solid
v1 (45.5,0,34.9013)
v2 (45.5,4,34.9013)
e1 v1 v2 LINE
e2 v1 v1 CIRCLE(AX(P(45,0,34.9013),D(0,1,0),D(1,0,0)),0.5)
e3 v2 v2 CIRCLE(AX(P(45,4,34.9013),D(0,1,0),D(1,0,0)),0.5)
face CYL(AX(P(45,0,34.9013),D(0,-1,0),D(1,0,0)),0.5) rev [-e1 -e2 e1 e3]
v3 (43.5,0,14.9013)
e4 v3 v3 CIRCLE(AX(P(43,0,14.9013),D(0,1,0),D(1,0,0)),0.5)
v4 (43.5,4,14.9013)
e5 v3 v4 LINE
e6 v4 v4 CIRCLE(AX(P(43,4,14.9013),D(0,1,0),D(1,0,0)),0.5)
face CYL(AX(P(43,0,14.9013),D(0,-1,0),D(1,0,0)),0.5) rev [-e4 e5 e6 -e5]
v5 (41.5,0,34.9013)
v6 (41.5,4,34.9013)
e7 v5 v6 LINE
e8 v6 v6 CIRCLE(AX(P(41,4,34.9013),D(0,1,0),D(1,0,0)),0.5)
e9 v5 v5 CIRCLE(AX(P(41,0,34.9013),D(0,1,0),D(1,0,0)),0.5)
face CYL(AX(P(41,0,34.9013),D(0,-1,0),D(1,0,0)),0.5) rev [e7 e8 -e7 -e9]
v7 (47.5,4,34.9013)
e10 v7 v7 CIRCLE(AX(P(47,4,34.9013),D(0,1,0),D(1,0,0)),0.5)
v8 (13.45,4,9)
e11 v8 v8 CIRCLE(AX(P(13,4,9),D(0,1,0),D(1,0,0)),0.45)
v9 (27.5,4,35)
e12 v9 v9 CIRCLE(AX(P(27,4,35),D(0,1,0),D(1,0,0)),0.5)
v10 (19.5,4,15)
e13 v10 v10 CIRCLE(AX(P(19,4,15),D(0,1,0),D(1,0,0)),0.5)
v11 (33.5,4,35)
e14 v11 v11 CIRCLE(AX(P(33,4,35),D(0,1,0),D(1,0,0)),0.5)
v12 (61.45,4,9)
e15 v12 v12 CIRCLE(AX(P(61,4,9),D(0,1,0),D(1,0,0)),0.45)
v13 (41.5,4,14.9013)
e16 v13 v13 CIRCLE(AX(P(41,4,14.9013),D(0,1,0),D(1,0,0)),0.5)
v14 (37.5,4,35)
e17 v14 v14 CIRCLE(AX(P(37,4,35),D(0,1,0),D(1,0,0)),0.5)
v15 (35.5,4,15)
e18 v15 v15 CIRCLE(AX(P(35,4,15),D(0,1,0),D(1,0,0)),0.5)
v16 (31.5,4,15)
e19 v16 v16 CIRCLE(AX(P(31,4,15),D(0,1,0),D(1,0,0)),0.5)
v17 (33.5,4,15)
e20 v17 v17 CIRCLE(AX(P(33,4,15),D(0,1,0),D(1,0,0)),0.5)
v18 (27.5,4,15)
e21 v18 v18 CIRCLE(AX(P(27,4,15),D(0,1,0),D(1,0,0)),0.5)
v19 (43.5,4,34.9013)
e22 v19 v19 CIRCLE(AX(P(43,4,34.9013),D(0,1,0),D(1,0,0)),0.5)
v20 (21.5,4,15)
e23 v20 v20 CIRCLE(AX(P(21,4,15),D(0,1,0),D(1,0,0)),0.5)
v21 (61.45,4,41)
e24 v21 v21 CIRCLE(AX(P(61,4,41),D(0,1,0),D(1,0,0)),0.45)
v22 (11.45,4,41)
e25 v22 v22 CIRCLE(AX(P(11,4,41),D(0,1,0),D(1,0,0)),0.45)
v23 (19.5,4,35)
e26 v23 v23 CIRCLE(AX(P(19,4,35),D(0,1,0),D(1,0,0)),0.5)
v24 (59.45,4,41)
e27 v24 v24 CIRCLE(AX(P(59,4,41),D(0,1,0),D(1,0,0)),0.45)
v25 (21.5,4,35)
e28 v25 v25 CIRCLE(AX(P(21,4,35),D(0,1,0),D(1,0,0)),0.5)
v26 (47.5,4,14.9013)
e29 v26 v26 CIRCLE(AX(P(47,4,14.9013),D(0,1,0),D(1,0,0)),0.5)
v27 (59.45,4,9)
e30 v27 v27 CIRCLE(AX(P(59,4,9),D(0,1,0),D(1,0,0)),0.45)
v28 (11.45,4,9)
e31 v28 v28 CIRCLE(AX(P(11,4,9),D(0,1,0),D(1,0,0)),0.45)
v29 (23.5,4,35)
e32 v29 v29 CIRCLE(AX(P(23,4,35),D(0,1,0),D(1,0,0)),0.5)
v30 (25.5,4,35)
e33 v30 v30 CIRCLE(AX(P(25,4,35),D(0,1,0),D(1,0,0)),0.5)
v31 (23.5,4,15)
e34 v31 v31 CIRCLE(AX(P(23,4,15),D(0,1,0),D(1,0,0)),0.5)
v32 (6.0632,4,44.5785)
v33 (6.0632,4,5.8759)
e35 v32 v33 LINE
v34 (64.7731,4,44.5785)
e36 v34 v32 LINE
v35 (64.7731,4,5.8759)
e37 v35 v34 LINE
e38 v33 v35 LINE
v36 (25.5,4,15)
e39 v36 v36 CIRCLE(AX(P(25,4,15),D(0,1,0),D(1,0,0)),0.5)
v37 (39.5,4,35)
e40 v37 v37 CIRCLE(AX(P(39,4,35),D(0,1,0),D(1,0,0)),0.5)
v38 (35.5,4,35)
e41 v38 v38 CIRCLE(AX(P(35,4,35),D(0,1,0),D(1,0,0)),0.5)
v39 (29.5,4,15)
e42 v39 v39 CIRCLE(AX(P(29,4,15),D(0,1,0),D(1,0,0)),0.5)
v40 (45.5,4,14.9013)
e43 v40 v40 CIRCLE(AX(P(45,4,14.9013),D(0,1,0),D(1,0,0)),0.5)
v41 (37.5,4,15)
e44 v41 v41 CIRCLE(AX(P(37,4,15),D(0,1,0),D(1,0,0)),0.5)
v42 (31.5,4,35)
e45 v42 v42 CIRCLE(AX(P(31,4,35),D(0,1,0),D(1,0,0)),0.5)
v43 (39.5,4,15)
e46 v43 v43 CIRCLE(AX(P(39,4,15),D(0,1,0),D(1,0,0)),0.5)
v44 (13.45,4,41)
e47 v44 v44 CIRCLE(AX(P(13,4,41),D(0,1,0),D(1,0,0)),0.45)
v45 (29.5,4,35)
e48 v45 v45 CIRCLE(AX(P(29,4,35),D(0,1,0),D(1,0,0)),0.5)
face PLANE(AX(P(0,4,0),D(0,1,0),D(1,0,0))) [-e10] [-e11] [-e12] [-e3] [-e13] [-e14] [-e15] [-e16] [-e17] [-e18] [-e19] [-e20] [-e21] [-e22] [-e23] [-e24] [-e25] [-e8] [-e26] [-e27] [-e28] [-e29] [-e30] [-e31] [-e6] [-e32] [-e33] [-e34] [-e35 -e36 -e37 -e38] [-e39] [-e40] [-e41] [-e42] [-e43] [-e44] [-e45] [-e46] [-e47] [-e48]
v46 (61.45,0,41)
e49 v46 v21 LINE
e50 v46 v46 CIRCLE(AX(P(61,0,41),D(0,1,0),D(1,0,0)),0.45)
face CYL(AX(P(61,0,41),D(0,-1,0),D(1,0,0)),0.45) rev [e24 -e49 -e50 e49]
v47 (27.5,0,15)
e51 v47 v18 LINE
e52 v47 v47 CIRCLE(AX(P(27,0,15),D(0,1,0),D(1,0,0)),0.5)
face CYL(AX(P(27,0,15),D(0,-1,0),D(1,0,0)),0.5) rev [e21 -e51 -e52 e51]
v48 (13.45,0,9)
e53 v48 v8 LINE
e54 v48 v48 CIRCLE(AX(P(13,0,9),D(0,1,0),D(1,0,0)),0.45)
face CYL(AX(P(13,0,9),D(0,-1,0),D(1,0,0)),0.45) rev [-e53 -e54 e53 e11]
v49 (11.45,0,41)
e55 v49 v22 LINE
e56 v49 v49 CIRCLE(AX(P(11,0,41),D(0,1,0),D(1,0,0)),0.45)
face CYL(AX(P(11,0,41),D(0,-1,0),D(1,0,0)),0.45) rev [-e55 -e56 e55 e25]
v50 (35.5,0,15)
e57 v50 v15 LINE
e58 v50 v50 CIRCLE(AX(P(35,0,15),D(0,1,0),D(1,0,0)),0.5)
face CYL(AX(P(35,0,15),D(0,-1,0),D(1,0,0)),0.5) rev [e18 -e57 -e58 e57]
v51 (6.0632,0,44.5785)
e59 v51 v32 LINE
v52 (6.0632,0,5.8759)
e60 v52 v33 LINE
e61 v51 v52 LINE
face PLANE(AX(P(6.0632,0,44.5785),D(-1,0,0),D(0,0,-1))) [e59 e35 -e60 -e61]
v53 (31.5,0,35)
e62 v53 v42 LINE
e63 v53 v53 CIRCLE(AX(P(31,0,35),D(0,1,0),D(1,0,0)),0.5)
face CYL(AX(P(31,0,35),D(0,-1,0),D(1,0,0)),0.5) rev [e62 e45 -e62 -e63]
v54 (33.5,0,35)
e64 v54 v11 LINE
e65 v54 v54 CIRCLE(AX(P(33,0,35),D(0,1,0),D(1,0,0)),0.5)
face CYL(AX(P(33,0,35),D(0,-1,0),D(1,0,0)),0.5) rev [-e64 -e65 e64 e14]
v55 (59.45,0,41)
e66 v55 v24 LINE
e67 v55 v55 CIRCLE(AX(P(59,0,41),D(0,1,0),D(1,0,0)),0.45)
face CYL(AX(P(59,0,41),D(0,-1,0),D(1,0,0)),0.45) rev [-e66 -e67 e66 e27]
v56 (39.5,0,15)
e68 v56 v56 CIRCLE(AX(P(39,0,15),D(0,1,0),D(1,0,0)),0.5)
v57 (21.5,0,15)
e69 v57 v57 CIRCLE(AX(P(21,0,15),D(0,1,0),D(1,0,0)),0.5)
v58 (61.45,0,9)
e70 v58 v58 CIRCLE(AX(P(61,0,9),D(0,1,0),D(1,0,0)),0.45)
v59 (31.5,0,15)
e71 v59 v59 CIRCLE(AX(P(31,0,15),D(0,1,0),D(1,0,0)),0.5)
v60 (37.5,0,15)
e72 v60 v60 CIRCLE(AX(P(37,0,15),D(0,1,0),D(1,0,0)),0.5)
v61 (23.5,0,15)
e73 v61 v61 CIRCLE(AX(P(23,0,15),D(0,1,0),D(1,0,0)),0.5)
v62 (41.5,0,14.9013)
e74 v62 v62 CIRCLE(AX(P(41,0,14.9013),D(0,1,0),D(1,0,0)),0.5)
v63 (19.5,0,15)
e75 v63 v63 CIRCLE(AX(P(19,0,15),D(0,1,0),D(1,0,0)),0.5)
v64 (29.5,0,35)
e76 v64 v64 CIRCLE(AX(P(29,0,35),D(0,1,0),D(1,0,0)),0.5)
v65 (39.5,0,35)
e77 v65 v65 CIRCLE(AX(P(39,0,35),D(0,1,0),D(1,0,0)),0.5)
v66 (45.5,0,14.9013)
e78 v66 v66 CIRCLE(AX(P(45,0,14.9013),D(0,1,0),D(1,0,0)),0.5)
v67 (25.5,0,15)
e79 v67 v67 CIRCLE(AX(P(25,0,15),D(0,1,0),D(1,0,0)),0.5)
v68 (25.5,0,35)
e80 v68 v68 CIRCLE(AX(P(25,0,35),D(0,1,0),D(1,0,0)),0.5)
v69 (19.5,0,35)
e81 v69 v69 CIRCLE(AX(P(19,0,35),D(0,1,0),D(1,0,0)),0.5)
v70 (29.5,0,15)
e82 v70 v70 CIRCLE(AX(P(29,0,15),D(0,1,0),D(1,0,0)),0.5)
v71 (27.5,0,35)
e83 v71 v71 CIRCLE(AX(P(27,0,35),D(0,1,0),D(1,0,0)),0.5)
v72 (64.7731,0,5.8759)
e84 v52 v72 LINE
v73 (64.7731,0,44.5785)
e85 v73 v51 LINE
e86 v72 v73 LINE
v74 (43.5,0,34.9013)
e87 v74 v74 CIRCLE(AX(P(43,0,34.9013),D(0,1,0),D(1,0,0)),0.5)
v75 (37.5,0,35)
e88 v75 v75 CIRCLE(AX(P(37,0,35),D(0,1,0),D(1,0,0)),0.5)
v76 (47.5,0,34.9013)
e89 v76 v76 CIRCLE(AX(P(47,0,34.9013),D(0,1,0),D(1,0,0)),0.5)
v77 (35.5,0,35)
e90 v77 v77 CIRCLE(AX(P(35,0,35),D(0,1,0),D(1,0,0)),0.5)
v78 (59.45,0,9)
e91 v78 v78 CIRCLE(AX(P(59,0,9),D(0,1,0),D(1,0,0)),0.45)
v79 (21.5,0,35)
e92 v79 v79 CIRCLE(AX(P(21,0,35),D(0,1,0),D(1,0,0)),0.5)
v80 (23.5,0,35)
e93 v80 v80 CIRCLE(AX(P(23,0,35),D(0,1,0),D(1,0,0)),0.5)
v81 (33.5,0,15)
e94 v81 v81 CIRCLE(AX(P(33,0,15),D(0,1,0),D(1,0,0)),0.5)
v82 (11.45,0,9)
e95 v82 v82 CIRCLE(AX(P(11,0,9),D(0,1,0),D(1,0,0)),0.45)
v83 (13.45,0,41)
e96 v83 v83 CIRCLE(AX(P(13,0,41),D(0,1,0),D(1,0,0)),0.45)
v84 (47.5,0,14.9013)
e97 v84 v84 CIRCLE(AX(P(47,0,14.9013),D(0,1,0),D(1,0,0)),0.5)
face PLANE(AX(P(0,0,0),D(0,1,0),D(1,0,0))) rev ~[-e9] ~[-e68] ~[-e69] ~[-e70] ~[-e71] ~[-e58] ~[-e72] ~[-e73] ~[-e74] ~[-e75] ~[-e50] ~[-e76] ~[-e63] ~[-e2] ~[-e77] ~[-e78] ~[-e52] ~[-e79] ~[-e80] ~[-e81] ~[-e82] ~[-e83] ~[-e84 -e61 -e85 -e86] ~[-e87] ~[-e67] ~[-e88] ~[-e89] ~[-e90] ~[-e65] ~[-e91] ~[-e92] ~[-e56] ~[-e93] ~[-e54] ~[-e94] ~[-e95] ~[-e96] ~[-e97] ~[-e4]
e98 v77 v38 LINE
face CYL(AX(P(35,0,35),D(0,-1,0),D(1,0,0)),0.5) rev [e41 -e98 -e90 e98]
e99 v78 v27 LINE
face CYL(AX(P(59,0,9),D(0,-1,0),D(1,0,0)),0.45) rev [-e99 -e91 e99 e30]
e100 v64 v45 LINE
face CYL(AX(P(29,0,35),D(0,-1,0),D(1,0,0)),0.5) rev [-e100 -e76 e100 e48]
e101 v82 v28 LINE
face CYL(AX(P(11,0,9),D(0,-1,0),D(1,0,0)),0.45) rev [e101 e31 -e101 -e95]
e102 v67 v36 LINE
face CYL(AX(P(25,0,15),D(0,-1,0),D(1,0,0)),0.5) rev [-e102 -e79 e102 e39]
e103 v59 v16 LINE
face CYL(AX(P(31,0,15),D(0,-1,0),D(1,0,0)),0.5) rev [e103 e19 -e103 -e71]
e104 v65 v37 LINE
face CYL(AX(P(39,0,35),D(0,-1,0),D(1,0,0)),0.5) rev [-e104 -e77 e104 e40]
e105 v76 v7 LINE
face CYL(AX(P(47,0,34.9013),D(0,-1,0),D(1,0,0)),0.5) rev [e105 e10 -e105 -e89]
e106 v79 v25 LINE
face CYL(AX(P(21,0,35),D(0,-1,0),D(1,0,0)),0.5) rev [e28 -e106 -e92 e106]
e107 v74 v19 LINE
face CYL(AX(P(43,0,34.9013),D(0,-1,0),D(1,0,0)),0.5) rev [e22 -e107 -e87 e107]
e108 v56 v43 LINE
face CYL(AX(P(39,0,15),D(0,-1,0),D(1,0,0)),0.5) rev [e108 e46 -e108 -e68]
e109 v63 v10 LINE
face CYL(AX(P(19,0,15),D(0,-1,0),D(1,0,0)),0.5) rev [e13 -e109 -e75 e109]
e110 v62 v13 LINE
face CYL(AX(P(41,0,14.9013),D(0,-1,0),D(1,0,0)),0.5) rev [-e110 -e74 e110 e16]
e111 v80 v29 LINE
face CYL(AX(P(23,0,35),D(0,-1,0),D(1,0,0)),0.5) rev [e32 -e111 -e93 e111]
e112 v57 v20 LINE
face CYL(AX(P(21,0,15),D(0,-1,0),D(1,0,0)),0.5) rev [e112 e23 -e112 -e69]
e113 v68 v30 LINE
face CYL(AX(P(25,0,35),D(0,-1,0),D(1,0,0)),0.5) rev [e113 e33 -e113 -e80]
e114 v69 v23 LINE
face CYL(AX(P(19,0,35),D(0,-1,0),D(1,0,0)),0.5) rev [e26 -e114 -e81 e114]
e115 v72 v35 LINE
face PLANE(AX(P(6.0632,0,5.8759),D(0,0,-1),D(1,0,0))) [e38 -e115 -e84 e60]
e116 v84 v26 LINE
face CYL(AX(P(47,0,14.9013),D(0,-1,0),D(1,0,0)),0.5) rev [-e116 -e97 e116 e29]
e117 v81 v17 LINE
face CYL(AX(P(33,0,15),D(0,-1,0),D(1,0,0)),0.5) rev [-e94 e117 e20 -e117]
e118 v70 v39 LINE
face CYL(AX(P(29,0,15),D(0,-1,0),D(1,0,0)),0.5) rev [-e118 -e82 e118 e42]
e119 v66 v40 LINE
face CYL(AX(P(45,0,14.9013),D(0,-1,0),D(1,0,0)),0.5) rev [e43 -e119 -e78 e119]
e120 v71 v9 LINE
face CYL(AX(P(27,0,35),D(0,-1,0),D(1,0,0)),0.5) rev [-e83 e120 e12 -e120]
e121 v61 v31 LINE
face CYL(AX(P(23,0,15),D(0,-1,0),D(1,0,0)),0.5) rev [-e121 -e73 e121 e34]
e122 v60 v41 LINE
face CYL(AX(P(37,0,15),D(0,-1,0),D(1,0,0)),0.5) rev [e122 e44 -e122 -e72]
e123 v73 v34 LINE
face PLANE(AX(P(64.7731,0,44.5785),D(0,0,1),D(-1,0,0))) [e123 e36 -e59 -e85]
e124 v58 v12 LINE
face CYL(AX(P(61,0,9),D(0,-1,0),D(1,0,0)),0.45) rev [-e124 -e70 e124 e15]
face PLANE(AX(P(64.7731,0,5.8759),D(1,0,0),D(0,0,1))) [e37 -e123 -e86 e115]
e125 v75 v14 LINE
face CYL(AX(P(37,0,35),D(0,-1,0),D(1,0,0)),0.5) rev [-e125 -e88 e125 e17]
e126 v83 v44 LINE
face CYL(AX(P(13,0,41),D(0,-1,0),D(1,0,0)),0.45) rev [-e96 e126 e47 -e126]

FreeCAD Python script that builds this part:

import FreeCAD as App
import Part
import Sketcher
Q = App.Units.Quantity


def add_polygon(sketch, points):
    """Adds a closed chain of lines whose ends are joined by coincident constraints."""
    first, n = sketch.GeometryCount, len(points)
    for a, b in zip(points, points[1:] + points[:1]):
        sketch.addGeometry(Part.LineSegment(App.Vector(*a, 0), App.Vector(*b, 0)), False)
    for i in range(n):
        sketch.addConstraint(Sketcher.Constraint("Coincident", first + i, 2, first + (i + 1) % n, 1))

doc = App.newDocument("Part")
params = doc.addObject("Spreadsheet::Sheet", "Params")
for row, (alias, value) in enumerate([
    ("sketch1_diameter", "1 mm"),
    ("sketch1_diameter2", "0.9 mm"),
    ("sketch1_width", "58.71 mm"),
    ("pad1_length", "4 mm"),
], start=1):
    params.set(f"A{row}", alias)
    params.set(f"B{row}", "=" + value)
    params.setAlias(f"B{row}", alias)

body = doc.addObject("PartDesign::Body", "Body")

sketch1 = body.newObject("Sketcher::SketchObject", "Sketch")
sketch1.AttachmentSupport = (doc.getObject("XZ_Plane"), [""])
sketch1.MapMode = "FlatFace"
add_polygon(sketch1, [(64.77, 5.88), (6.06, 5.88), (6.06, 44.58), (64.77, 44.58)])
sketch1.addGeometry(Part.Circle(App.Vector(11, 41, 0), App.Vector(0, 0, 1), 0.45), False)
sketch1.addGeometry(Part.Circle(App.Vector(13, 41, 0), App.Vector(0, 0, 1), 0.45), False)
sketch1.addGeometry(Part.Circle(App.Vector(19, 35, 0), App.Vector(0, 0, 1), 0.5), False)
sketch1.addGeometry(Part.Circle(App.Vector(21, 35, 0), App.Vector(0, 0, 1), 0.5), False)
sketch1.addGeometry(Part.Circle(App.Vector(23, 35, 0), App.Vector(0, 0, 1), 0.5), False)
sketch1.addGeometry(Part.Circle(App.Vector(25, 35, 0), App.Vector(0, 0, 1), 0.5), False)
sketch1.addGeometry(Part.Circle(App.Vector(27, 35, 0), App.Vector(0, 0, 1), 0.5), False)
sketch1.addGeometry(Part.Circle(App.Vector(29, 35, 0), App.Vector(0, 0, 1), 0.5), False)
sketch1.addGeometry(Part.Circle(App.Vector(31, 35, 0), App.Vector(0, 0, 1), 0.5), False)
sketch1.addGeometry(Part.Circle(App.Vector(33, 35, 0), App.Vector(0, 0, 1), 0.5), False)
sketch1.addGeometry(Part.Circle(App.Vector(35, 35, 0), App.Vector(0, 0, 1), 0.5), False)
sketch1.addGeometry(Part.Circle(App.Vector(37, 35, 0), App.Vector(0, 0, 1), 0.5), False)
sketch1.addGeometry(Part.Circle(App.Vector(39, 35, 0), App.Vector(0, 0, 1), 0.5), False)
sketch1.addGeometry(Part.Circle(App.Vector(59, 41, 0), App.Vector(0, 0, 1), 0.45), False)
sketch1.addGeometry(Part.Circle(App.Vector(61, 41, 0), App.Vector(0, 0, 1), 0.45), False)
sketch1.addGeometry(Part.Circle(App.Vector(41, 34.9, 0), App.Vector(0, 0, 1), 0.5), False)
sketch1.addGeometry(Part.Circle(App.Vector(43, 34.9, 0), App.Vector(0, 0, 1), 0.5), False)
sketch1.addGeometry(Part.Circle(App.Vector(45, 34.9, 0), App.Vector(0, 0, 1), 0.5), False)
sketch1.addGeometry(Part.Circle(App.Vector(47, 34.9, 0), App.Vector(0, 0, 1), 0.5), False)
sketch1.addGeometry(Part.Circle(App.Vector(19, 15, 0), App.Vector(0, 0, 1), 0.5), False)
sketch1.addGeometry(Part.Circle(App.Vector(11, 9, 0), App.Vector(0, 0, 1), 0.45), False)
sketch1.addGeometry(Part.Circle(App.Vector(13, 9, 0), App.Vector(0, 0, 1), 0.45), False)
sketch1.addGeometry(Part.Circle(App.Vector(21, 15, 0), App.Vector(0, 0, 1), 0.5), False)
sketch1.addGeometry(Part.Circle(App.Vector(23, 15, 0), App.Vector(0, 0, 1), 0.5), False)
sketch1.addGeometry(Part.Circle(App.Vector(25, 15, 0), App.Vector(0, 0, 1), 0.5), False)
sketch1.addGeometry(Part.Circle(App.Vector(27, 15, 0), App.Vector(0, 0, 1), 0.5), False)
sketch1.addGeometry(Part.Circle(App.Vector(29, 15, 0), App.Vector(0, 0, 1), 0.5), False)
sketch1.addGeometry(Part.Circle(App.Vector(31, 15, 0), App.Vector(0, 0, 1), 0.5), False)
sketch1.addGeometry(Part.Circle(App.Vector(33, 15, 0), App.Vector(0, 0, 1), 0.5), False)
sketch1.addGeometry(Part.Circle(App.Vector(35, 15, 0), App.Vector(0, 0, 1), 0.5), False)
sketch1.addGeometry(Part.Circle(App.Vector(37, 15, 0), App.Vector(0, 0, 1), 0.5), False)
sketch1.addGeometry(Part.Circle(App.Vector(39, 15, 0), App.Vector(0, 0, 1), 0.5), False)
sketch1.addGeometry(Part.Circle(App.Vector(41, 14.9, 0), App.Vector(0, 0, 1), 0.5), False)
sketch1.addGeometry(Part.Circle(App.Vector(43, 14.9, 0), App.Vector(0, 0, 1), 0.5), False)
sketch1.addGeometry(Part.Circle(App.Vector(45, 14.9, 0), App.Vector(0, 0, 1), 0.5), False)
sketch1.addGeometry(Part.Circle(App.Vector(47, 14.9, 0), App.Vector(0, 0, 1), 0.5), False)
sketch1.addGeometry(Part.Circle(App.Vector(59, 9, 0), App.Vector(0, 0, 1), 0.45), False)
sketch1.addGeometry(Part.Circle(App.Vector(61, 9, 0), App.Vector(0, 0, 1), 0.45), False)
sketch1.addConstraint([
    Sketcher.Constraint("Horizontal", 0),
    Sketcher.Constraint("Vertical", 1),
    Sketcher.Constraint("Horizontal", 2),
    Sketcher.Constraint("Vertical", 3),
    Sketcher.Constraint("Equal", 4, 5),
    Sketcher.Constraint("Equal", 6, 7),
    Sketcher.Constraint("Equal", 7, 8),
    Sketcher.Constraint("Equal", 8, 9),
    Sketcher.Constraint("Equal", 9, 10),
    Sketcher.Constraint("Equal", 10, 11),
    Sketcher.Constraint("Equal", 11, 12),
    Sketcher.Constraint("Equal", 12, 13),
    Sketcher.Constraint("Equal", 13, 14),
    Sketcher.Constraint("Equal", 14, 15),
    Sketcher.Constraint("Equal", 15, 16),
    Sketcher.Constraint("Equal", 5, 17),
    Sketcher.Constraint("Equal", 17, 18),
    Sketcher.Constraint("Equal", 16, 19),
    Sketcher.Constraint("Equal", 19, 20),
    Sketcher.Constraint("Equal", 20, 21),
    Sketcher.Constraint("Equal", 21, 22),
    Sketcher.Constraint("Equal", 22, 23),
    Sketcher.Constraint("Equal", 18, 24),
    Sketcher.Constraint("Equal", 24, 25),
    Sketcher.Constraint("Equal", 23, 26),
    Sketcher.Constraint("Equal", 26, 27),
    Sketcher.Constraint("Equal", 27, 28),
    Sketcher.Constraint("Equal", 28, 29),
    Sketcher.Constraint("Equal", 29, 30),
    Sketcher.Constraint("Equal", 30, 31),
    Sketcher.Constraint("Equal", 31, 32),
    Sketcher.Constraint("Equal", 32, 33),
    Sketcher.Constraint("Equal", 33, 34),
    Sketcher.Constraint("Equal", 34, 35),
    Sketcher.Constraint("Equal", 35, 36),
    Sketcher.Constraint("Equal", 36, 37),
    Sketcher.Constraint("Equal", 37, 38),
    Sketcher.Constraint("Equal", 38, 39),
    Sketcher.Constraint("Equal", 25, 40),
    Sketcher.Constraint("Equal", 40, 41),
    Sketcher.Constraint("Horizontal", 4, 3, 5, 3),
    Sketcher.Constraint("Horizontal", 6, 3, 7, 3),
    Sketcher.Constraint("Horizontal", 7, 3, 8, 3),
    Sketcher.Constraint("Horizontal", 8, 3, 9, 3),
    Sketcher.Constraint("Horizontal", 9, 3, 10, 3),
    Sketcher.Constraint("Horizontal", 10, 3, 11, 3),
    Sketcher.Constraint("Horizontal", 11, 3, 12, 3),
    Sketcher.Constraint("Horizontal", 12, 3, 13, 3),
    Sketcher.Constraint("Horizontal", 13, 3, 14, 3),
    Sketcher.Constraint("Horizontal", 14, 3, 15, 3),
    Sketcher.Constraint("Horizontal", 15, 3, 16, 3),
    Sketcher.Constraint("Horizontal", 5, 3, 17, 3),
    Sketcher.Constraint("Horizontal", 17, 3, 18, 3),
    Sketcher.Constraint("Horizontal", 19, 3, 20, 3),
    Sketcher.Constraint("Horizontal", 20, 3, 21, 3),
    Sketcher.Constraint("Horizontal", 21, 3, 22, 3),
    Sketcher.Constraint("Horizontal", 24, 3, 25, 3),
    Sketcher.Constraint("Horizontal", 23, 3, 26, 3),
    Sketcher.Constraint("Horizontal", 26, 3, 27, 3),
    Sketcher.Constraint("Horizontal", 27, 3, 28, 3),
    Sketcher.Constraint("Horizontal", 28, 3, 29, 3),
    Sketcher.Constraint("Horizontal", 29, 3, 30, 3),
    Sketcher.Constraint("Horizontal", 30, 3, 31, 3),
    Sketcher.Constraint("Horizontal", 31, 3, 32, 3),
    Sketcher.Constraint("Horizontal", 32, 3, 33, 3),
    Sketcher.Constraint("Horizontal", 33, 3, 34, 3),
    Sketcher.Constraint("Horizontal", 34, 3, 35, 3),
    Sketcher.Constraint("Horizontal", 36, 3, 37, 3),
    Sketcher.Constraint("Horizontal", 37, 3, 38, 3),
    Sketcher.Constraint("Horizontal", 38, 3, 39, 3),
    Sketcher.Constraint("Horizontal", 25, 3, 40, 3),
    Sketcher.Constraint("Horizontal", 40, 3, 41, 3),
    Sketcher.Constraint("Vertical", 6, 3, 23, 3),
    Sketcher.Constraint("Vertical", 4, 3, 24, 3),
    Sketcher.Constraint("Vertical", 5, 3, 25, 3),
    Sketcher.Constraint("Vertical", 7, 3, 26, 3),
    Sketcher.Constraint("Vertical", 8, 3, 27, 3),
    Sketcher.Constraint("Vertical", 9, 3, 28, 3),
    Sketcher.Constraint("Vertical", 10, 3, 29, 3),
    Sketcher.Constraint("Vertical", 11, 3, 30, 3),
    Sketcher.Constraint("Vertical", 12, 3, 31, 3),
    Sketcher.Constraint("Vertical", 13, 3, 32, 3),
    Sketcher.Constraint("Vertical", 14, 3, 33, 3),
    Sketcher.Constraint("Vertical", 15, 3, 34, 3),
    Sketcher.Constraint("Vertical", 16, 3, 35, 3),
    Sketcher.Constraint("Vertical", 19, 3, 36, 3),
    Sketcher.Constraint("Vertical", 20, 3, 37, 3),
    Sketcher.Constraint("Vertical", 21, 3, 38, 3),
    Sketcher.Constraint("Vertical", 22, 3, 39, 3),
    Sketcher.Constraint("Vertical", 17, 3, 40, 3),
    Sketcher.Constraint("Vertical", 18, 3, 41, 3),
    Sketcher.Constraint("Diameter", 6, Q("1 mm")),
    Sketcher.Constraint("Diameter", 4, Q("0.9 mm")),
    Sketcher.Constraint("DistanceX", -1, 1, 4, 3, Q("11 mm")),
    Sketcher.Constraint("DistanceY", -1, 1, 4, 3, Q("41 mm")),
    Sketcher.Constraint("DistanceX", -1, 1, 5, 3, Q("13 mm")),
    Sketcher.Constraint("DistanceX", -1, 1, 6, 3, Q("19 mm")),
    Sketcher.Constraint("DistanceY", -1, 1, 6, 3, Q("35 mm")),
    Sketcher.Constraint("DistanceX", -1, 1, 7, 3, Q("21 mm")),
    Sketcher.Constraint("DistanceX", -1, 1, 8, 3, Q("23 mm")),
    Sketcher.Constraint("DistanceX", -1, 1, 9, 3, Q("25 mm")),
    Sketcher.Constraint("DistanceX", -1, 1, 10, 3, Q("27 mm")),
    Sketcher.Constraint("DistanceX", -1, 1, 11, 3, Q("29 mm")),
    Sketcher.Constraint("DistanceX", -1, 1, 12, 3, Q("31 mm")),
    Sketcher.Constraint("DistanceX", -1, 1, 13, 3, Q("33 mm")),
    Sketcher.Constraint("DistanceX", -1, 1, 14, 3, Q("35 mm")),
    Sketcher.Constraint("DistanceX", -1, 1, 15, 3, Q("37 mm")),
    Sketcher.Constraint("DistanceX", -1, 1, 16, 3, Q("39 mm")),
    Sketcher.Constraint("DistanceX", -1, 1, 17, 3, Q("59 mm")),
    Sketcher.Constraint("DistanceX", -1, 1, 18, 3, Q("61 mm")),
    Sketcher.Constraint("DistanceX", -1, 1, 19, 3, Q("41 mm")),
    Sketcher.Constraint("DistanceX", -1, 1, 20, 3, Q("43 mm")),
    Sketcher.Constraint("DistanceX", -1, 1, 21, 3, Q("45 mm")),
    Sketcher.Constraint("DistanceX", -1, 1, 22, 3, Q("47 mm")),
    Sketcher.Constraint("DistanceY", -1, 1, 23, 3, Q("15 mm")),
    Sketcher.Constraint("DistanceY", -1, 1, 24, 3, Q("9 mm")),
    Sketcher.Constraint("DistanceX", 0, 2, 0, 1, Q("58.71 mm")),
    Sketcher.Constraint("DistanceY", 1, 1, 1, 2, Q("38.7026 mm")),
    Sketcher.Constraint("DistanceY", -1, 1, 0, 2, Q("5.876 mm")),
    Sketcher.Constraint("DistanceX", -1, 1, 2, 2, Q("64.773 mm")),
    Sketcher.Constraint("DistanceY", -1, 1, 19, 3, Q("34.9013 mm")),
    Sketcher.Constraint("DistanceY", -1, 1, 36, 3, Q("14.9013 mm")),
])
sketch1.setExpression("Constraints[95]", "Params.sketch1_diameter")
sketch1.setExpression("Constraints[96]", "Params.sketch1_diameter2")
sketch1.setExpression("Constraints[120]", "Params.sketch1_width")
pad1 = body.newObject("PartDesign::Pad", "Pad")
pad1.Profile = sketch1
pad1.setExpression("Length", "Params.pad1_length")
pad1.Reversed = True

doc.recompute()
